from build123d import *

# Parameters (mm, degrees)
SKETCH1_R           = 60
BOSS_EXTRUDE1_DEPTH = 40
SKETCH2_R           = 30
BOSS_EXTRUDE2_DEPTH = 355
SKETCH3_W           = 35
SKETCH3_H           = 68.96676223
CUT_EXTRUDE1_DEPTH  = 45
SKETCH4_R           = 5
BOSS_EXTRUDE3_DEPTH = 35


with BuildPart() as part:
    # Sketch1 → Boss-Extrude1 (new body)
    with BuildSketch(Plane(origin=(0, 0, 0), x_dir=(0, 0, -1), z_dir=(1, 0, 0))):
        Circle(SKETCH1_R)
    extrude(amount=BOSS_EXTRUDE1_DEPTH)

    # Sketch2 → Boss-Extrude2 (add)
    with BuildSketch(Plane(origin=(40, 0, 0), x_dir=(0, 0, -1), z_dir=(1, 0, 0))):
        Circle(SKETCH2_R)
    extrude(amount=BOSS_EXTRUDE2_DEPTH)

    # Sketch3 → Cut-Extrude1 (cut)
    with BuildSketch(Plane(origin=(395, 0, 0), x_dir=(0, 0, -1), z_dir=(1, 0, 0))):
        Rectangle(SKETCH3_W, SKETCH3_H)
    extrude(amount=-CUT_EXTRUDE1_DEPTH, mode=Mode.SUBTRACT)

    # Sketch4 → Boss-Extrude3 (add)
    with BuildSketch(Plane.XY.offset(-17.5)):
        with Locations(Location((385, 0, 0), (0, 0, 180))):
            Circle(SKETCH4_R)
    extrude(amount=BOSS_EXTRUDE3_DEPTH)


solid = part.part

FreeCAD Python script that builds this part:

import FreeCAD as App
import Part
import Sketcher

doc = App.newDocument("Part")
body = doc.addObject("PartDesign::Body", "Body")

sketch1 = body.newObject("Sketcher::SketchObject", "Sketch")
sketch1.AttachmentSupport = (doc.getObject("YZ_Plane"), [""])
sketch1.MapMode = "FlatFace"
sketch1.addGeometry(Part.Circle(App.Vector(0, 0, 0), App.Vector(0, 0, 1), 60), False)
sketch1.addConstraint([
    Sketcher.Constraint("Coincident", 0, 3, -1, 1),
    Sketcher.Constraint("Diameter", 0, 120.0),
])
pad1 = body.newObject("PartDesign::Pad", "Pad")
pad1.Profile = sketch1
pad1.Length = 40

sketch2 = body.newObject("Sketcher::SketchObject", "Sketch001")
sketch2.AttachmentSupport = (doc.getObject("YZ_Plane"), [""])
sketch2.MapMode = "FlatFace"
sketch2.AttachmentOffset = App.Placement(App.Vector(0, 0, 40), App.Rotation())
sketch2.addGeometry(Part.Circle(App.Vector(0, 0, 0), App.Vector(0, 0, 1), 30), False)
sketch2.addConstraint([
    Sketcher.Constraint("Coincident", 0, 3, -1, 1),
    Sketcher.Constraint("Diameter", 0, 60.0),
])
pad2 = body.newObject("PartDesign::Pad", "Pad001")
pad2.Profile = sketch2
pad2.Length = 355

sketch3 = body.newObject("Sketcher::SketchObject", "Sketch002")
sketch3.AttachmentSupport = (doc.getObject("YZ_Plane"), [""])
sketch3.MapMode = "FlatFace"
sketch3.AttachmentOffset = App.Placement(App.Vector(0, 0, 395), App.Rotation())
sketch3.addGeometry([
    Part.LineSegment(App.Vector(34, 18, 0), App.Vector(-34, 18, 0)),
    Part.LineSegment(App.Vector(-34, 18, 0), App.Vector(-34, -18, 0)),
    Part.LineSegment(App.Vector(-34, -18, 0), App.Vector(34, -18, 0)),
    Part.LineSegment(App.Vector(34, -18, 0), App.Vector(34, 18, 0)),
], False)
sketch3.addConstraint([
    Sketcher.Constraint("Coincident", 0, 2, 1, 1),
    Sketcher.Constraint("Coincident", 1, 2, 2, 1),
    Sketcher.Constraint("Coincident", 2, 2, 3, 1),
    Sketcher.Constraint("Coincident", 3, 2, 0, 1),
    Sketcher.Constraint("Horizontal", 0),
    Sketcher.Constraint("Vertical", 1),
    Sketcher.Constraint("Horizontal", 2),
    Sketcher.Constraint("Vertical", 3),
    Sketcher.Constraint("Symmetric", 0, 2, 2, 2, -1, 1),
    Sketcher.Constraint("DistanceY", 1, 2, 1, 1, 35.0),
    Sketcher.Constraint("DistanceX", 0, 2, 0, 1, 68.966762),
])
pocket1 = body.newObject("PartDesign::Pocket", "Pocket")
pocket1.Profile = sketch3
pocket1.Length = 45

sketch4 = body.newObject("Sketcher::SketchObject", "Sketch003")
sketch4.AttachmentSupport = (doc.getObject("XY_Plane"), [""])
sketch4.MapMode = "FlatFace"
sketch4.AttachmentOffset = App.Placement(App.Vector(0, 0, -17.5), App.Rotation())
sketch4.addGeometry(Part.Circle(App.Vector(385, 0, 0), App.Vector(0, 0, 1), 5), False)
sketch4.addConstraint([
    Sketcher.Constraint("PointOnObject", 0, 3, -1),
    Sketcher.Constraint("Diameter", 0, 10.0),
    Sketcher.Constraint("DistanceX", -1, 1, 0, 3, 385.0),
])
pad3 = body.newObject("PartDesign::Pad", "Pad002")
pad3.Profile = sketch4
pad3.Length = 35

doc.recompute()
